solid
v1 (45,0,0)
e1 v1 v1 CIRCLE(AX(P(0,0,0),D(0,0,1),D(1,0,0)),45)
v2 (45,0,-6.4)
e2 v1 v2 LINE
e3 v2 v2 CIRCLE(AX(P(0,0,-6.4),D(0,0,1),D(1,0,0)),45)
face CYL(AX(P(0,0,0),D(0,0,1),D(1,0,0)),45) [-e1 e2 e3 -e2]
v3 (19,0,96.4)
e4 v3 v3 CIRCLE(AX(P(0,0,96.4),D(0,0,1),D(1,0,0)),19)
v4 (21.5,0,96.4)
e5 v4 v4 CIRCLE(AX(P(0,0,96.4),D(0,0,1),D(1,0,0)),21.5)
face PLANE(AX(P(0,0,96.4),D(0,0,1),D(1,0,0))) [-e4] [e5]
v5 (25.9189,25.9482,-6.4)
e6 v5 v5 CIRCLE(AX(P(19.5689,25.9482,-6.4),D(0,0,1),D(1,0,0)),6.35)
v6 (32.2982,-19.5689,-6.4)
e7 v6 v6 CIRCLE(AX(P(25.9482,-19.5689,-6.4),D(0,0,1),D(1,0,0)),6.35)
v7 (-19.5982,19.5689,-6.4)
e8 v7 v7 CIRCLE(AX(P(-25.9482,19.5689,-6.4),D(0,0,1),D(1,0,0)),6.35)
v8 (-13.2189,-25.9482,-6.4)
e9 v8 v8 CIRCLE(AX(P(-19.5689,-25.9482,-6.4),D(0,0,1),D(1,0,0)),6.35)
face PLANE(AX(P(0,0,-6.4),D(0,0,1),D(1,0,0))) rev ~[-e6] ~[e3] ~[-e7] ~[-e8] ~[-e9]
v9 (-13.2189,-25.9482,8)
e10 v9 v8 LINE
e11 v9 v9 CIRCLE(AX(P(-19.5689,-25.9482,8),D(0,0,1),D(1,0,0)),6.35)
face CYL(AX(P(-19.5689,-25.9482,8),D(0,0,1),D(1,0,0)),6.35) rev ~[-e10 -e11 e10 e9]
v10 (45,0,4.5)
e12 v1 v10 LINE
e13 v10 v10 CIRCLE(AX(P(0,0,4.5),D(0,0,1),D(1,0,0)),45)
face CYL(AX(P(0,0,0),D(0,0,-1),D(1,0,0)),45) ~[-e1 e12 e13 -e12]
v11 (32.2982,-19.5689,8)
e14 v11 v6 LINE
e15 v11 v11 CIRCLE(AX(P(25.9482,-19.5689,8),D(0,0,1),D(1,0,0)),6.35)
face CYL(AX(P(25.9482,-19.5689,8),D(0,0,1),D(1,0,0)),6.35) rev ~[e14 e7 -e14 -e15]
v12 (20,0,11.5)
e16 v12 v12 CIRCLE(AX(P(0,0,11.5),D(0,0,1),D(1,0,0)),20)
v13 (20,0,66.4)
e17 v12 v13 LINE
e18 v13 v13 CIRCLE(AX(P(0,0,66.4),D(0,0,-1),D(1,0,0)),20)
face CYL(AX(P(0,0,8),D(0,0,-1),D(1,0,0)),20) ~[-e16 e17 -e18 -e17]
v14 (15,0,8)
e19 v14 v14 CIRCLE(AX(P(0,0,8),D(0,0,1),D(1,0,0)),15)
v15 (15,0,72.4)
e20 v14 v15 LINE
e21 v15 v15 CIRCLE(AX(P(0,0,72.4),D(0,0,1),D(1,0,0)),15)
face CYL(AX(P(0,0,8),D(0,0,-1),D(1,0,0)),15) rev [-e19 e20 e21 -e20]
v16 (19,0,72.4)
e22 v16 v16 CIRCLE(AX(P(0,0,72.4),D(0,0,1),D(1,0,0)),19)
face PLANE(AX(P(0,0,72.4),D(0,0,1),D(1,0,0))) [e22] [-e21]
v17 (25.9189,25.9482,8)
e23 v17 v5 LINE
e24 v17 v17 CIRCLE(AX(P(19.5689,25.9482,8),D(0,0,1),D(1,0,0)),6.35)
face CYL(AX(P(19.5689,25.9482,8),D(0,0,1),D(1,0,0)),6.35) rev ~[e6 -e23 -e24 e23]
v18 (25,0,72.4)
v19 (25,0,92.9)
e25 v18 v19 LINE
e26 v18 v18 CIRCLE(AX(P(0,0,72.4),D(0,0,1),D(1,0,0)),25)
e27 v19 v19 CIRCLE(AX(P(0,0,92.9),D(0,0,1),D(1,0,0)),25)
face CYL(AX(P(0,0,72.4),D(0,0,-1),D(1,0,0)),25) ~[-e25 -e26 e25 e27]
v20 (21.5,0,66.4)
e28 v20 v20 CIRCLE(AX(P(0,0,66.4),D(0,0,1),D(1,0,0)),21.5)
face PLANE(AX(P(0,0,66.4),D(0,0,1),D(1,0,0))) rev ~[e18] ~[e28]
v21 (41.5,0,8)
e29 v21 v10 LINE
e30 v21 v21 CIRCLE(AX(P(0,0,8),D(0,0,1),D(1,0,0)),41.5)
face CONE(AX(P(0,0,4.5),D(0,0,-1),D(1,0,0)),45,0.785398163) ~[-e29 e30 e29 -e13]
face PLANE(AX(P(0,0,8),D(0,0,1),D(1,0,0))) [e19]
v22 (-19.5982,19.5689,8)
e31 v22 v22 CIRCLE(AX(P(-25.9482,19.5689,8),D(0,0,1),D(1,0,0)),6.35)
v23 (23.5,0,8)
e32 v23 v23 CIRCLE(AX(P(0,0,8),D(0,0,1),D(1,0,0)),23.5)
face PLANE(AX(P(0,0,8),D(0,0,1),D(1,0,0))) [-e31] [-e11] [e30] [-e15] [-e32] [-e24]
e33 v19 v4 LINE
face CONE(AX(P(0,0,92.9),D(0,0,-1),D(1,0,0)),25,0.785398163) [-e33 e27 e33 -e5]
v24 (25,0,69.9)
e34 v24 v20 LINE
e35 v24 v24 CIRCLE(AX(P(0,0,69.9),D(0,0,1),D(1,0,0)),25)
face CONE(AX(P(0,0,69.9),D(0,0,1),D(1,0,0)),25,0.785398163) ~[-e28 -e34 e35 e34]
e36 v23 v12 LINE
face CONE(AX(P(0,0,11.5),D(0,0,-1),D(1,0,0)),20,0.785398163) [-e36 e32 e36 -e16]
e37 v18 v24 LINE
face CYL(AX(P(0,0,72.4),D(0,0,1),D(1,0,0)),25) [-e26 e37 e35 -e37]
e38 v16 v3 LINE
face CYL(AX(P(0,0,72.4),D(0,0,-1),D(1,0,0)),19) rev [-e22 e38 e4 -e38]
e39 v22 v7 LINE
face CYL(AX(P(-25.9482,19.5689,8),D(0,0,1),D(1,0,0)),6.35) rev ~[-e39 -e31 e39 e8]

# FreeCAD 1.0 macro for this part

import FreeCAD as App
import Part
import Sketcher

V = App.Vector


def edges_at(feature, points):
    """Names of the edges that pass closest to the given points."""
    edges = feature.Shape.Edges
    near = lambda p: min(range(len(edges)), key=lambda i: edges[i].distToShape(Part.Vertex(*p))[0])
    return sorted({f"Edge{near(p) + 1}" for p in points})

doc = App.newDocument("Part")
body = doc.addObject("PartDesign::Body", "Body")

# Sketch on XY plane
sketch1 = doc.addObject("Sketcher::SketchObject", "Sketch")
body.addObject(sketch1)
sketch1.AttachmentSupport = (doc.XY_Plane, [""])
sketch1.MapMode = "FlatFace"
sketch1.addGeometry(Part.Circle(V(0, 0, 0), V(0, 0, 1), 45), False)
sketch1.addConstraint([
    Sketcher.Constraint("Coincident", 0, 3, -1, 1),
    Sketcher.Constraint("Diameter", 0, 90.0),
])
pad1 = doc.addObject("PartDesign::Pad", "Pad")
body.addObject(pad1)
pad1.Profile = sketch1
pad1.Type = "TwoLengths"
pad1.Length = 8
pad1.Length2 = 6.4

# Sketch on XY plane
sketch2 = doc.addObject("Sketcher::SketchObject", "Sketch001")
body.addObject(sketch2)
sketch2.AttachmentSupport = (doc.XY_Plane, [""])
sketch2.MapMode = "FlatFace"
sketch2.AttachmentOffset = App.Placement(V(0, 0, 8), App.Rotation())
sketch2.addGeometry([
    Part.Circle(V(20, 26, 0), V(0, 0, 1), 6),
    Part.Circle(V(-26, 20, 0), V(0, 0, 1), 6),
    Part.Circle(V(-20, -26, 0), V(0, 0, 1), 6),
    Part.Circle(V(26, -20, 0), V(0, 0, 1), 6),
], False)
sketch2.addConstraint([
    Sketcher.Constraint("Equal", 0, 1),
    Sketcher.Constraint("Equal", 1, 2),
    Sketcher.Constraint("Equal", 2, 3),
    Sketcher.Constraint("Symmetric", 0, 3, 2, 3, -1, 1),
    Sketcher.Constraint("Symmetric", 1, 3, 3, 3, -1, 1),
    Sketcher.Constraint("Diameter", 0, 12.7),
    Sketcher.Constraint("DistanceX", -1, 1, 0, 3, 19.569),
    Sketcher.Constraint("DistanceY", -1, 1, 1, 3, 19.569),
    Sketcher.Constraint("DistanceX", 1, 3, 0, 3, 45.517),
    Sketcher.Constraint("DistanceY", 2, 3, 1, 3, 45.517),
])
pocket1 = doc.addObject("PartDesign::Pocket", "Pocket")
body.addObject(pocket1)
pocket1.Profile = sketch2
pocket1.Type = "ThroughAll"

# Sketch on XY plane
sketch3 = doc.addObject("Sketcher::SketchObject", "Sketch002")
body.addObject(sketch3)
sketch3.AttachmentSupport = (doc.XY_Plane, [""])
sketch3.MapMode = "FlatFace"
sketch3.AttachmentOffset = App.Placement(V(0, 0, 8), App.Rotation())
sketch3.addGeometry([
    Part.Circle(V(0, 0, 0), V(0, 0, 1), 20),
    Part.Circle(V(0, 0, 0), V(0, 0, 1), 15),
], False)
sketch3.addConstraint([
    Sketcher.Constraint("Coincident", 0, 3, -1, 1),
    Sketcher.Constraint("Coincident", 1, 3, -1, 1),
    Sketcher.Constraint("Diameter", 0, 40.0),
    Sketcher.Constraint("Diameter", 1, 30.0),
])
pad2 = doc.addObject("PartDesign::Pad", "Pad001")
body.addObject(pad2)
pad2.Profile = sketch3
pad2.Length = 64.4

# Sketch on XY plane
sketch4 = doc.addObject("Sketcher::SketchObject", "Sketch003")
body.addObject(sketch4)
sketch4.AttachmentSupport = (doc.XY_Plane, [""])
sketch4.MapMode = "FlatFace"
sketch4.AttachmentOffset = App.Placement(V(0, 0, 72.4), App.Rotation())
sketch4.addGeometry([
    Part.Circle(V(0, 0, 0), V(0, 0, 1), 25),
    Part.Circle(V(0, 0, 0), V(0, 0, 1), 19),
], False)
sketch4.addConstraint([
    Sketcher.Constraint("Coincident", 0, 3, -1, 1),
    Sketcher.Constraint("Coincident", 1, 3, -1, 1),
    Sketcher.Constraint("Diameter", 0, 50.0),
    Sketcher.Constraint("Diameter", 1, 38.0),
])
pad3 = doc.addObject("PartDesign::Pad", "Pad002")
body.addObject(pad3)
pad3.Profile = sketch4
pad3.Type = "TwoLengths"
pad3.Length = 24
pad3.Length2 = 6
doc.recompute()

chamfer = doc.addObject("PartDesign::Chamfer", "Chamfer")
body.addObject(chamfer)
chamfer.Base = (pad3, edges_at(pad3, [(-20, 0, 8)]))
chamfer.Size = 3.5
doc.recompute()

chamfer2 = doc.addObject("PartDesign::Chamfer", "Chamfer001")
body.addObject(chamfer2)
chamfer2.Base = (chamfer, edges_at(chamfer, [(-25, 0, 96.4)]))
chamfer2.Size = 3.5
doc.recompute()

chamfer3 = doc.addObject("PartDesign::Chamfer", "Chamfer002")
body.addObject(chamfer3)
chamfer3.Base = (chamfer2, edges_at(chamfer2, [(-25, 0, 66.4)]))
chamfer3.Size = 3.5
doc.recompute()

chamfer4 = doc.addObject("PartDesign::Chamfer", "Chamfer003")
body.addObject(chamfer4)
chamfer4.Base = (chamfer3, edges_at(chamfer3, [(-45, 0, 8)]))
chamfer4.Size = 3.5

doc.recompute()
